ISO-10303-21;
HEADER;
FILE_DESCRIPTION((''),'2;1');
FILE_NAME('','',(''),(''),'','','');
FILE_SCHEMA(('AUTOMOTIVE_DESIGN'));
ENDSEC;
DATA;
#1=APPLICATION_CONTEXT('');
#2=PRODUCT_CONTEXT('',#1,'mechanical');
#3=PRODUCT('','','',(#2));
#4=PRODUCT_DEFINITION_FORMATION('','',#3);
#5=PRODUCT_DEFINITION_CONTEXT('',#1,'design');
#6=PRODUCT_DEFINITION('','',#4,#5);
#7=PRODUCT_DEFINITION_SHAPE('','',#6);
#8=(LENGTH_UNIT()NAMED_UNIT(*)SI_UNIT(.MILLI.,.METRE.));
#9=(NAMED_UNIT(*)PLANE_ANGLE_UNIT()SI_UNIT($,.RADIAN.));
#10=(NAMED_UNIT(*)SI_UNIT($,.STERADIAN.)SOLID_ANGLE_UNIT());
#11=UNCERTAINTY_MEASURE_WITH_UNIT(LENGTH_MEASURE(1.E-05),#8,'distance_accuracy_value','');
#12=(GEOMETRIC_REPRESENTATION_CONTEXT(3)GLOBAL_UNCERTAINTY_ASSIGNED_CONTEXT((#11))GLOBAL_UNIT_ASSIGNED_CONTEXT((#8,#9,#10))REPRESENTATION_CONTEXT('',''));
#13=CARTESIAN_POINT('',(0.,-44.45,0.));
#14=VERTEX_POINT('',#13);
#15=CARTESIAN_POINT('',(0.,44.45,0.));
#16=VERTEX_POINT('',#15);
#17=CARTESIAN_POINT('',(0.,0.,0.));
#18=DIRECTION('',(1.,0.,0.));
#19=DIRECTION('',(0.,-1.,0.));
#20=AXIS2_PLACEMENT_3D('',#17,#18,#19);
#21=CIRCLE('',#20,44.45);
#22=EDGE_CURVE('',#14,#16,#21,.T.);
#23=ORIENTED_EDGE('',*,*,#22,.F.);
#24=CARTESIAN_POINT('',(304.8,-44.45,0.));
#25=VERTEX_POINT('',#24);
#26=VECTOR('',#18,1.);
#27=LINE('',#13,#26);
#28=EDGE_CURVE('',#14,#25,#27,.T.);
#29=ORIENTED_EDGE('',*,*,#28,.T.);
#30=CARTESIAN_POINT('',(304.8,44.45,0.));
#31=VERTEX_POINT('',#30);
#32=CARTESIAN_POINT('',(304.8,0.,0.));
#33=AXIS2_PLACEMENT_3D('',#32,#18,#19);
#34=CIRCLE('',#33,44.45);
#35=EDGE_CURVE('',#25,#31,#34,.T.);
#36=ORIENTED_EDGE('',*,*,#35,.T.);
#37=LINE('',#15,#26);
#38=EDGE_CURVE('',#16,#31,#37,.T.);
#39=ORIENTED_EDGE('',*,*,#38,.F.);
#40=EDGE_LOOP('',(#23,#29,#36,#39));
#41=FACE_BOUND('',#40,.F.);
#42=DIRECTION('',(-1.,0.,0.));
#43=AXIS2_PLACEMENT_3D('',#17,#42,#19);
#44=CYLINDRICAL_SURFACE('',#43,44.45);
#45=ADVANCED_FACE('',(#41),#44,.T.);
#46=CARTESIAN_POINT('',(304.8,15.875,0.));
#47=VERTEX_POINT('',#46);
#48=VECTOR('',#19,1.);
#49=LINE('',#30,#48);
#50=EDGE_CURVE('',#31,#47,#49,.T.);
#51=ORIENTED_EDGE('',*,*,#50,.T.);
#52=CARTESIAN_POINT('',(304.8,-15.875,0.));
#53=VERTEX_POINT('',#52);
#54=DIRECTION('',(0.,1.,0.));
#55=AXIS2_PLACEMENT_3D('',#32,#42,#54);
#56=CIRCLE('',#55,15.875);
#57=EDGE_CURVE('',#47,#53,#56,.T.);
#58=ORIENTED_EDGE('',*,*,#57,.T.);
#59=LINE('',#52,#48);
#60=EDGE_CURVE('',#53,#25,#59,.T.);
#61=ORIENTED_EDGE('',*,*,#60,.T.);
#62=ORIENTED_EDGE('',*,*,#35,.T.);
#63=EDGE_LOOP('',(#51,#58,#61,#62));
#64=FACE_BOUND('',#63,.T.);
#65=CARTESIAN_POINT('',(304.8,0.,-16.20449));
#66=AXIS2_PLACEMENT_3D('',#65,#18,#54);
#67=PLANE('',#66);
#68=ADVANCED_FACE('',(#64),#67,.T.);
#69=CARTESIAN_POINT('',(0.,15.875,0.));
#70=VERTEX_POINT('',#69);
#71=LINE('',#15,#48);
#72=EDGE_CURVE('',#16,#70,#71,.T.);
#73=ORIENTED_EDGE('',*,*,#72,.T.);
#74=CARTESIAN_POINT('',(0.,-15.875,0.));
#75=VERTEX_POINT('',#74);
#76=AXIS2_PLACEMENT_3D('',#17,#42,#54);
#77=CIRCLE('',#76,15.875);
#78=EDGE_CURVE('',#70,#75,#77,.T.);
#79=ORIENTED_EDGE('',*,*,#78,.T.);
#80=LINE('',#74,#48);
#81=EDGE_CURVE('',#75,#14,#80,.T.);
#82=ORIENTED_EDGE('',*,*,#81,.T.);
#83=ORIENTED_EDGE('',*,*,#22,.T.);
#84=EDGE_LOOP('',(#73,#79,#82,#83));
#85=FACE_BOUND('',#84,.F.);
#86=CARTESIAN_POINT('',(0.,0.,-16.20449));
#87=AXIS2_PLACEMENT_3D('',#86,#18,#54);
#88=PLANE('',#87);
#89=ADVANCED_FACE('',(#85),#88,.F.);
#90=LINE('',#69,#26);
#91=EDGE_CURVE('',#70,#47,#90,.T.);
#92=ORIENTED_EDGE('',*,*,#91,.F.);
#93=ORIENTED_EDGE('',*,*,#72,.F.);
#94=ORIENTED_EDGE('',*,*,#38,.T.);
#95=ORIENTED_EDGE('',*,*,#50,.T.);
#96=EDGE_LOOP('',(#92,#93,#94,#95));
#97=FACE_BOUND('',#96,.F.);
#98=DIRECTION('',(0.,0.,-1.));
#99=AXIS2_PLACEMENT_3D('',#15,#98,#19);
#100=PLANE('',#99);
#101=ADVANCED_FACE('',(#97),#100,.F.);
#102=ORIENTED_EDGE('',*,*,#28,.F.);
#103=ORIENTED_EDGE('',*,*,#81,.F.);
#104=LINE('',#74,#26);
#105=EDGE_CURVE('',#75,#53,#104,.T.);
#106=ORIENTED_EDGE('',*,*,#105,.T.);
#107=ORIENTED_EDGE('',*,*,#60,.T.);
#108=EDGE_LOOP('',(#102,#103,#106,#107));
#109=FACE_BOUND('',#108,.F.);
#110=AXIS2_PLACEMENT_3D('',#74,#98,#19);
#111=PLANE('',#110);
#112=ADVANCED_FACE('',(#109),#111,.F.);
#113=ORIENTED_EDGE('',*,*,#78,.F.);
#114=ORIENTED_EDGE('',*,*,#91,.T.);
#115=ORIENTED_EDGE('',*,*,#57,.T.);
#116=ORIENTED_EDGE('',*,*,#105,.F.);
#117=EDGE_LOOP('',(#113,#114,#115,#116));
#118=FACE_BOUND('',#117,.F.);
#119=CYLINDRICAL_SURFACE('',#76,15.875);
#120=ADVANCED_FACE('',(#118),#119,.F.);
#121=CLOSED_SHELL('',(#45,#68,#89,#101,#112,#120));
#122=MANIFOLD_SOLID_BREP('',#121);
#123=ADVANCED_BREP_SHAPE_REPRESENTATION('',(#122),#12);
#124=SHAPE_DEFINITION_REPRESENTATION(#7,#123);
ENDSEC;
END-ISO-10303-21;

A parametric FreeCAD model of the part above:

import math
import FreeCAD as App
import Part
import Sketcher

V = App.Vector
Q = App.Units.Quantity

doc = App.newDocument("Part")
body = doc.addObject("PartDesign::Body", "Body")

sketch1 = body.newObject("Sketcher::SketchObject", "Sketch")
sketch1.AttachmentSupport = (doc.getObject("YZ_Plane"), [""])
sketch1.MapMode = "FlatFace"
sketch1.addGeometry(Part.LineSegment(V(-15.875, 0, 0), V(-44.45, 0, 0)), False)
sketch1.addGeometry(Part.ArcOfCircle(Part.Circle(V(0, 0, 0), V(0, 0, 1), 44.45), math.radians(180), math.radians(360)), False)
sketch1.addGeometry(Part.LineSegment(V(44.45, 0, 0), V(15.875, 0, 0)), False)
sketch1.addGeometry(Part.ArcOfCircle(Part.Circle(V(0, 0, 0), V(0, 0, 1), 15.875), math.radians(180), math.radians(360)), False)
sketch1.addConstraint(Sketcher.Constraint("Coincident", 0, 2, 1, 1))
sketch1.addConstraint(Sketcher.Constraint("Coincident", 1, 2, 2, 1))
sketch1.addConstraint(Sketcher.Constraint("Coincident", 2, 2, 3, 2))
sketch1.addConstraint(Sketcher.Constraint("Coincident", 3, 1, 0, 1))
sketch1.addConstraint(Sketcher.Constraint("Horizontal", 0))
sketch1.addConstraint(Sketcher.Constraint("Horizontal", 2))
sketch1.addConstraint(Sketcher.Constraint("Coincident", 1, 3, -1, 1))
sketch1.addConstraint(Sketcher.Constraint("Coincident", 3, 3, -1, 1))
sketch1.addConstraint(Sketcher.Constraint("PointOnObject", 0, 2, -1))
sketch1.addConstraint(Sketcher.Constraint("PointOnObject", 1, 2, -1))
sketch1.addConstraint(Sketcher.Constraint("Radius", 1, Q("1.75 in")))
sketch1.addConstraint(Sketcher.Constraint("Radius", 3, Q("0.625 in")))
pad1 = body.newObject("PartDesign::Pad", "Pad")
pad1.Profile = sketch1
pad1.Length = Q("12 in")

doc.recompute()
